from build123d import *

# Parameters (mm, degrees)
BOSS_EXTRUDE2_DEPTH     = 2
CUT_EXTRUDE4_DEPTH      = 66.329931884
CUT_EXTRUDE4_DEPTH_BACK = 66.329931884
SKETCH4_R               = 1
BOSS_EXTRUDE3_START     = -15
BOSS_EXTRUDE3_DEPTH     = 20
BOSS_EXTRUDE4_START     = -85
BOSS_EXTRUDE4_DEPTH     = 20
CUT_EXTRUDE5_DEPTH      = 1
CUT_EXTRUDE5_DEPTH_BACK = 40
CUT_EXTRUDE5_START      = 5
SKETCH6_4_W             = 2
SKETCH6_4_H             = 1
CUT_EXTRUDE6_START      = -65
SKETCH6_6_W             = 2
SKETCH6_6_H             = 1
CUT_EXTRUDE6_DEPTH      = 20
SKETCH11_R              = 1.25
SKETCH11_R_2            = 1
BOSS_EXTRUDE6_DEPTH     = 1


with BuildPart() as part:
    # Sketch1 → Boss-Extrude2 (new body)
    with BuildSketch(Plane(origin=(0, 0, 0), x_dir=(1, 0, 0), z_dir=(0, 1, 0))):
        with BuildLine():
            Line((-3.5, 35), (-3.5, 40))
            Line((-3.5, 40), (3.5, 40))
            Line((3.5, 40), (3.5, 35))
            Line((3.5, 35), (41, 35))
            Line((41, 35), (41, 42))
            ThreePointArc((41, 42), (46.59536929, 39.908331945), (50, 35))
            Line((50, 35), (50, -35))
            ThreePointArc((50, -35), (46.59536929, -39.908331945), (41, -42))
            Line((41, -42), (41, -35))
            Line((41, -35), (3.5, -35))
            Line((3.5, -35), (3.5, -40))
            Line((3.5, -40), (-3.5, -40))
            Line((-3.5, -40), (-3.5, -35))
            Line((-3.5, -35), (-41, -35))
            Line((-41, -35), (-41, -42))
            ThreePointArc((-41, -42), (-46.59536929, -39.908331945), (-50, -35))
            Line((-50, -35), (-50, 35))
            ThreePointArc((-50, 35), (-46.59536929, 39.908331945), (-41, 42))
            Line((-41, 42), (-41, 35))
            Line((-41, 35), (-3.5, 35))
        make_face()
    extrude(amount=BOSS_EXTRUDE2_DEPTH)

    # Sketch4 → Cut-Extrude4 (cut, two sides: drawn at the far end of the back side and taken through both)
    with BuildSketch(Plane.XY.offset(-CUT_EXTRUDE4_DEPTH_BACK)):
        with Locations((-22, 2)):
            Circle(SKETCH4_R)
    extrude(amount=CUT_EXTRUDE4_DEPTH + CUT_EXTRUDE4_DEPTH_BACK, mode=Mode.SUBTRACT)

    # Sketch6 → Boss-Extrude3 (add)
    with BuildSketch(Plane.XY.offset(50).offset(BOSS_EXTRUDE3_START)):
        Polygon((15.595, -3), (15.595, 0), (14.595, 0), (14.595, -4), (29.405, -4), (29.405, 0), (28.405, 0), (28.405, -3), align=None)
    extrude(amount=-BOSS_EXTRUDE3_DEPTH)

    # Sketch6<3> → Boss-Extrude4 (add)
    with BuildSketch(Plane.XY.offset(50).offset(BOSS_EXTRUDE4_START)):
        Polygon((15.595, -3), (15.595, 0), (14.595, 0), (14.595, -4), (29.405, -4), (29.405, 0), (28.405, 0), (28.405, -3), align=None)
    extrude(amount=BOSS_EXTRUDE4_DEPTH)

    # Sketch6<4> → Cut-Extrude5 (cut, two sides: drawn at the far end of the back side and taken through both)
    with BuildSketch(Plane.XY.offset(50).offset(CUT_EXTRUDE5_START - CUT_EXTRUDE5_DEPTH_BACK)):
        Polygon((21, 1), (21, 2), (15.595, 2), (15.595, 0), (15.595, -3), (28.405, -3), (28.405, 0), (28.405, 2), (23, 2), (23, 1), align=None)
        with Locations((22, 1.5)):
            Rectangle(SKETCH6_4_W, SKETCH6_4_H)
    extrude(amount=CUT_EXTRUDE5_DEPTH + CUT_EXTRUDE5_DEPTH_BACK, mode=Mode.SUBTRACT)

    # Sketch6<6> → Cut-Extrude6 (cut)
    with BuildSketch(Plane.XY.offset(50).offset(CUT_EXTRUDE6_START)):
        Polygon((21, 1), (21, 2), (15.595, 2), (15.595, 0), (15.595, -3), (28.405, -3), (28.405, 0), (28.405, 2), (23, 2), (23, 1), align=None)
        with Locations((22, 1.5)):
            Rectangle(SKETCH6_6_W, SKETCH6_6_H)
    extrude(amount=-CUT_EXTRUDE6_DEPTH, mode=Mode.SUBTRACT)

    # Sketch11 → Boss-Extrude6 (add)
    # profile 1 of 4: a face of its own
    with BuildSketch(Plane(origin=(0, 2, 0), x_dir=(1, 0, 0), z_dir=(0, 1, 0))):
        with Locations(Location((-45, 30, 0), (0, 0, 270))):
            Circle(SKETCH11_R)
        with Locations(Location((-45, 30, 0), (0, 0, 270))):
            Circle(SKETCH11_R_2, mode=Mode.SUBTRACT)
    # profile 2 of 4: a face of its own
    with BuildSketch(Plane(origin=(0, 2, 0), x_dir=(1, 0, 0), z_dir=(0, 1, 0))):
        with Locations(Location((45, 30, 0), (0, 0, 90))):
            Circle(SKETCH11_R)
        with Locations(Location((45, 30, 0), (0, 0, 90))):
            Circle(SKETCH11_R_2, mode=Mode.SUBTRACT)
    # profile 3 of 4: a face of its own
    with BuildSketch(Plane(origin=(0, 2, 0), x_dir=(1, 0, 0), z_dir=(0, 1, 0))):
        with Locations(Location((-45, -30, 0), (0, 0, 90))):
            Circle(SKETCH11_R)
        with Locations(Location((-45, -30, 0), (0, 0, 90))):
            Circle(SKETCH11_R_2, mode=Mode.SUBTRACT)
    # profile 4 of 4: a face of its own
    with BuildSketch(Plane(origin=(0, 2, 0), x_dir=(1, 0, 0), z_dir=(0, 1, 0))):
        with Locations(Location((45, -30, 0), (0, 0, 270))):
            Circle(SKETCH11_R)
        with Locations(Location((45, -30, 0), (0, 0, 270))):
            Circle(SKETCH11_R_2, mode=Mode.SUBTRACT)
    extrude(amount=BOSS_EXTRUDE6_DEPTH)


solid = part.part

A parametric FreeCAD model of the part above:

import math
import FreeCAD as App
import Part
import Sketcher

V = App.Vector
Q = App.Units.Quantity

doc = App.newDocument("Part")
body = doc.addObject("PartDesign::Body", "Body")

sketch1 = body.newObject("Sketcher::SketchObject", "Sketch")
sketch1.AttachmentSupport = (doc.getObject("XZ_Plane"), [""])
sketch1.MapMode = "FlatFace"
sketch1.addGeometry([
    Part.LineSegment(V(-3.5, -40, 0), V(-3.5, -35, 0)),
    Part.LineSegment(V(-3.5, -35, 0), V(-41, -35, 0)),
    Part.LineSegment(V(-41, -35, 0), V(-41, -42, 0)),
    Part.ArcOfCircle(Part.Circle(V(-40.455963, -32.01481, 0), V(0, 0, 1), 10), math.radians(-162.631326), math.radians(-93.118641)),
    Part.LineSegment(V(-50, -35, 0), V(-50, 35, 0)),
    Part.ArcOfCircle(Part.Circle(V(-40.455963, 32.01481, 0), V(0, 0, 1), 10), math.radians(93.118641), math.radians(162.631326)),
    Part.LineSegment(V(-41, 42, 0), V(-41, 35, 0)),
    Part.LineSegment(V(-41, 35, 0), V(-3.5, 35, 0)),
    Part.LineSegment(V(-3.5, 35, 0), V(-3.5, 40, 0)),
    Part.LineSegment(V(-3.5, 40, 0), V(3.5, 40, 0)),
    Part.LineSegment(V(3.5, 40, 0), V(3.5, 35, 0)),
    Part.LineSegment(V(3.5, 35, 0), V(41, 35, 0)),
    Part.LineSegment(V(41, 35, 0), V(41, 42, 0)),
    Part.ArcOfCircle(Part.Circle(V(40.455963, 32.01481, 0), V(0, 0, 1), 10), math.radians(17.368674), math.radians(86.881359)),
    Part.LineSegment(V(50, 35, 0), V(50, -35, 0)),
    Part.ArcOfCircle(Part.Circle(V(40.455963, -32.01481, 0), V(0, 0, 1), 10), math.radians(-86.881359), math.radians(-17.368674)),
    Part.LineSegment(V(41, -42, 0), V(41, -35, 0)),
    Part.LineSegment(V(41, -35, 0), V(3.5, -35, 0)),
    Part.LineSegment(V(3.5, -35, 0), V(3.5, -40, 0)),
    Part.LineSegment(V(3.5, -40, 0), V(-3.5, -40, 0)),
], False)
sketch1.addConstraint([
    Sketcher.Constraint("Coincident", 0, 2, 1, 1),
    Sketcher.Constraint("Coincident", 1, 2, 2, 1),
    Sketcher.Constraint("Coincident", 2, 2, 3, 2),
    Sketcher.Constraint("Coincident", 3, 1, 4, 1),
    Sketcher.Constraint("Coincident", 4, 2, 5, 2),
    Sketcher.Constraint("Coincident", 5, 1, 6, 1),
    Sketcher.Constraint("Coincident", 6, 2, 7, 1),
    Sketcher.Constraint("Coincident", 7, 2, 8, 1),
    Sketcher.Constraint("Coincident", 8, 2, 9, 1),
    Sketcher.Constraint("Coincident", 9, 2, 10, 1),
    Sketcher.Constraint("Coincident", 10, 2, 11, 1),
    Sketcher.Constraint("Coincident", 11, 2, 12, 1),
    Sketcher.Constraint("Coincident", 12, 2, 13, 2),
    Sketcher.Constraint("Coincident", 13, 1, 14, 1),
    Sketcher.Constraint("Coincident", 14, 2, 15, 2),
    Sketcher.Constraint("Coincident", 15, 1, 16, 1),
    Sketcher.Constraint("Coincident", 16, 2, 17, 1),
    Sketcher.Constraint("Coincident", 17, 2, 18, 1),
    Sketcher.Constraint("Coincident", 18, 2, 19, 1),
    Sketcher.Constraint("Coincident", 19, 2, 0, 1),
    Sketcher.Constraint("Vertical", 0),
    Sketcher.Constraint("Horizontal", 1),
    Sketcher.Constraint("Vertical", 2),
    Sketcher.Constraint("Vertical", 4),
    Sketcher.Constraint("Vertical", 6),
    Sketcher.Constraint("Horizontal", 7),
    Sketcher.Constraint("Vertical", 8),
    Sketcher.Constraint("Horizontal", 9),
    Sketcher.Constraint("Vertical", 10),
    Sketcher.Constraint("Horizontal", 11),
    Sketcher.Constraint("Vertical", 12),
    Sketcher.Constraint("Vertical", 14),
    Sketcher.Constraint("Vertical", 16),
    Sketcher.Constraint("Horizontal", 17),
    Sketcher.Constraint("Vertical", 18),
    Sketcher.Constraint("Horizontal", 19),
    Sketcher.Constraint("Equal", 3, 5),
    Sketcher.Constraint("Equal", 5, 13),
    Sketcher.Constraint("Equal", 13, 15),
    Sketcher.Constraint("Symmetric", 3, 3, 13, 3, -1, 1),
    Sketcher.Constraint("Symmetric", 5, 3, 15, 3, -1, 1),
    Sketcher.Constraint("Symmetric", 0, 2, 10, 2, -1, 1),
    Sketcher.Constraint("Symmetric", 6, 2, 16, 2, -1, 1),
    Sketcher.Constraint("Symmetric", 8, 2, 18, 2, -1, 1),
    Sketcher.Constraint("Symmetric", 5, 3, 13, 3, -2),
    Sketcher.Constraint("Symmetric", 7, 2, 10, 2, -2),
    Sketcher.Constraint("Horizontal", 1, 2, 3, 1),
    Sketcher.Constraint("Horizontal", 5, 1, 12, 2),
    Sketcher.Constraint("Horizontal", 11, 2, 13, 1),
    Sketcher.Constraint("Horizontal", 2, 2, 15, 1),
    Sketcher.Constraint("Equal", 19, 2),
    Sketcher.Constraint("Radius", 3, Q("10 mm")),
    Sketcher.Constraint("DistanceX", 9, 1, 9, 2, Q("7 mm")),
    Sketcher.Constraint("DistanceY", 0, 1, 0, 2, Q("5 mm")),
    Sketcher.Constraint("DistanceY", 4, 1, 4, 2, Q("70 mm")),
    Sketcher.Constraint("DistanceX", 1, 2, 1, 1, Q("37.5 mm")),
    Sketcher.Constraint("DistanceX", 3, 1, -1, 1, Q("50 mm")),
])
pad1 = body.newObject("PartDesign::Pad", "Pad")
pad1.Profile = sketch1
pad1.Length = 2
pad1.Reversed = True

sketch2 = body.newObject("Sketcher::SketchObject", "Sketch001")
sketch2.AttachmentSupport = (doc.getObject("XY_Plane"), [""])
sketch2.MapMode = "FlatFace"
sketch2.addGeometry(Part.Circle(V(-22, 2, 0), V(0, 0, 1), 1), False)
sketch2.addConstraint([
    Sketcher.Constraint("Diameter", 0, Q("2 mm")),
    Sketcher.Constraint("DistanceX", 0, 3, -1, 1, Q("22 mm")),
    Sketcher.Constraint("DistanceY", -1, 1, 0, 3, Q("2 mm")),
])
pocket1 = body.newObject("PartDesign::Pocket", "Pocket")
pocket1.Profile = sketch2
pocket1.Type = "ThroughAll"
pocket1.Midplane = True

sketch3 = body.newObject("Sketcher::SketchObject", "Sketch002")
sketch3.AttachmentSupport = (doc.getObject("XY_Plane"), [""])
sketch3.MapMode = "FlatFace"
sketch3.AttachmentOffset = App.Placement(V(0, 0, 35), App.Rotation())
sketch3.addGeometry([
    Part.LineSegment(V(15.595, -3, 0), V(15.595, 0, 0)),
    Part.LineSegment(V(15.595, 0, 0), V(14.595, 0, 0)),
    Part.LineSegment(V(14.595, 0, 0), V(14.595, -4, 0)),
    Part.LineSegment(V(14.595, -4, 0), V(29.405, -4, 0)),
    Part.LineSegment(V(29.405, -4, 0), V(29.405, 0, 0)),
    Part.LineSegment(V(29.405, 0, 0), V(28.405, 0, 0)),
    Part.LineSegment(V(28.405, 0, 0), V(28.405, -3, 0)),
    Part.LineSegment(V(28.405, -3, 0), V(15.595, -3, 0)),
], False)
sketch3.addConstraint([
    Sketcher.Constraint("Coincident", 0, 2, 1, 1),
    Sketcher.Constraint("Coincident", 1, 2, 2, 1),
    Sketcher.Constraint("Coincident", 2, 2, 3, 1),
    Sketcher.Constraint("Coincident", 3, 2, 4, 1),
    Sketcher.Constraint("Coincident", 4, 2, 5, 1),
    Sketcher.Constraint("Coincident", 5, 2, 6, 1),
    Sketcher.Constraint("Coincident", 6, 2, 7, 1),
    Sketcher.Constraint("Coincident", 7, 2, 0, 1),
    Sketcher.Constraint("Vertical", 0),
    Sketcher.Constraint("Horizontal", 1),
    Sketcher.Constraint("Vertical", 2),
    Sketcher.Constraint("Horizontal", 3),
    Sketcher.Constraint("Vertical", 4),
    Sketcher.Constraint("Horizontal", 5),
    Sketcher.Constraint("Vertical", 6),
    Sketcher.Constraint("Horizontal", 7),
    Sketcher.Constraint("PointOnObject", 0, 2, -1),
    Sketcher.Constraint("PointOnObject", 4, 2, -1),
    Sketcher.Constraint("Equal", 1, 5),
    Sketcher.Constraint("DistanceX", 1, 2, 1, 1, Q("1 mm")),
    Sketcher.Constraint("DistanceY", 0, 1, 0, 2, Q("3 mm")),
    Sketcher.Constraint("DistanceY", 2, 2, 2, 1, Q("4 mm")),
    Sketcher.Constraint("DistanceX", 3, 1, 3, 2, Q("14.81 mm")),
    Sketcher.Constraint("DistanceX", -1, 1, 0, 2, Q("15.595 mm")),
])
pad2 = body.newObject("PartDesign::Pad", "Pad001")
pad2.Profile = sketch3
pad2.Length = 20
pad2.Reversed = True

sketch4 = body.newObject("Sketcher::SketchObject", "Sketch003")
sketch4.AttachmentSupport = (doc.getObject("XY_Plane"), [""])
sketch4.MapMode = "FlatFace"
sketch4.AttachmentOffset = App.Placement(V(0, 0, -35), App.Rotation())
sketch4.addGeometry([
    Part.LineSegment(V(15.595, -3, 0), V(15.595, 0, 0)),
    Part.LineSegment(V(15.595, 0, 0), V(14.595, 0, 0)),
    Part.LineSegment(V(14.595, 0, 0), V(14.595, -4, 0)),
    Part.LineSegment(V(14.595, -4, 0), V(29.405, -4, 0)),
    Part.LineSegment(V(29.405, -4, 0), V(29.405, 0, 0)),
    Part.LineSegment(V(29.405, 0, 0), V(28.405, 0, 0)),
    Part.LineSegment(V(28.405, 0, 0), V(28.405, -3, 0)),
    Part.LineSegment(V(28.405, -3, 0), V(15.595, -3, 0)),
], False)
sketch4.addConstraint([
    Sketcher.Constraint("Coincident", 0, 2, 1, 1),
    Sketcher.Constraint("Coincident", 1, 2, 2, 1),
    Sketcher.Constraint("Coincident", 2, 2, 3, 1),
    Sketcher.Constraint("Coincident", 3, 2, 4, 1),
    Sketcher.Constraint("Coincident", 4, 2, 5, 1),
    Sketcher.Constraint("Coincident", 5, 2, 6, 1),
    Sketcher.Constraint("Coincident", 6, 2, 7, 1),
    Sketcher.Constraint("Coincident", 7, 2, 0, 1),
    Sketcher.Constraint("Vertical", 0),
    Sketcher.Constraint("Horizontal", 1),
    Sketcher.Constraint("Vertical", 2),
    Sketcher.Constraint("Horizontal", 3),
    Sketcher.Constraint("Vertical", 4),
    Sketcher.Constraint("Horizontal", 5),
    Sketcher.Constraint("Vertical", 6),
    Sketcher.Constraint("Horizontal", 7),
    Sketcher.Constraint("PointOnObject", 0, 2, -1),
    Sketcher.Constraint("PointOnObject", 4, 2, -1),
    Sketcher.Constraint("Equal", 1, 5),
    Sketcher.Constraint("DistanceX", 1, 2, 1, 1, Q("1 mm")),
    Sketcher.Constraint("DistanceY", 0, 1, 0, 2, Q("3 mm")),
    Sketcher.Constraint("DistanceY", 2, 2, 2, 1, Q("4 mm")),
    Sketcher.Constraint("DistanceX", 3, 1, 3, 2, Q("14.81 mm")),
    Sketcher.Constraint("DistanceX", -1, 1, 0, 2, Q("15.595 mm")),
])
pad3 = body.newObject("PartDesign::Pad", "Pad002")
pad3.Profile = sketch4
pad3.Length = 20

sketch5 = body.newObject("Sketcher::SketchObject", "Sketch004")
sketch5.AttachmentSupport = (doc.getObject("XY_Plane"), [""])
sketch5.MapMode = "FlatFace"
sketch5.AttachmentOffset = App.Placement(V(0, 0, 55), App.Rotation())
sketch5.addGeometry([
    Part.LineSegment(V(15.595, 2, 0), V(15.595, -3, 0)),
    Part.LineSegment(V(15.595, -3, 0), V(28.405, -3, 0)),
    Part.LineSegment(V(28.405, -3, 0), V(28.405, 2, 0)),
    Part.LineSegment(V(28.405, 2, 0), V(15.595, 2, 0)),
], False)
sketch5.addConstraint([
    Sketcher.Constraint("Coincident", 0, 2, 1, 1),
    Sketcher.Constraint("Coincident", 1, 2, 2, 1),
    Sketcher.Constraint("Coincident", 2, 2, 3, 1),
    Sketcher.Constraint("Coincident", 3, 2, 0, 1),
    Sketcher.Constraint("Vertical", 0),
    Sketcher.Constraint("Horizontal", 1),
    Sketcher.Constraint("Vertical", 2),
    Sketcher.Constraint("Horizontal", 3),
    Sketcher.Constraint("DistanceY", 0, 2, 0, 1, Q("5 mm")),
    Sketcher.Constraint("DistanceY", 0, 2, -1, 1, Q("3 mm")),
    Sketcher.Constraint("DistanceX", 1, 1, 1, 2, Q("12.81 mm")),
    Sketcher.Constraint("DistanceX", -1, 1, 0, 2, Q("15.595 mm")),
])
pocket2 = body.newObject("PartDesign::Pocket", "Pocket001")
pocket2.Profile = sketch5
pocket2.Type = "TwoLengths"
pocket2.Length = 1
pocket2.Length2 = 40
pocket2.Reversed = True

sketch6 = body.newObject("Sketcher::SketchObject", "Sketch005")
sketch6.AttachmentSupport = (doc.getObject("XY_Plane"), [""])
sketch6.MapMode = "FlatFace"
sketch6.AttachmentOffset = App.Placement(V(0, 0, -15), App.Rotation())
sketch6.addGeometry([
    Part.LineSegment(V(15.595, 2, 0), V(15.595, -3, 0)),
    Part.LineSegment(V(15.595, -3, 0), V(28.405, -3, 0)),
    Part.LineSegment(V(28.405, -3, 0), V(28.405, 2, 0)),
    Part.LineSegment(V(28.405, 2, 0), V(15.595, 2, 0)),
], False)
sketch6.addConstraint([
    Sketcher.Constraint("Coincident", 0, 2, 1, 1),
    Sketcher.Constraint("Coincident", 1, 2, 2, 1),
    Sketcher.Constraint("Coincident", 2, 2, 3, 1),
    Sketcher.Constraint("Coincident", 3, 2, 0, 1),
    Sketcher.Constraint("Vertical", 0),
    Sketcher.Constraint("Horizontal", 1),
    Sketcher.Constraint("Vertical", 2),
    Sketcher.Constraint("Horizontal", 3),
    Sketcher.Constraint("DistanceY", 0, 2, 0, 1, Q("5 mm")),
    Sketcher.Constraint("DistanceY", 0, 2, -1, 1, Q("3 mm")),
    Sketcher.Constraint("DistanceX", 1, 1, 1, 2, Q("12.81 mm")),
    Sketcher.Constraint("DistanceX", -1, 1, 0, 2, Q("15.595 mm")),
])
pocket3 = body.newObject("PartDesign::Pocket", "Pocket002")
pocket3.Profile = sketch6
pocket3.Length = 20

sketch7 = body.newObject("Sketcher::SketchObject", "Sketch006")
sketch7.AttachmentSupport = (doc.getObject("XZ_Plane"), [""])
sketch7.MapMode = "FlatFace"
sketch7.AttachmentOffset = App.Placement(V(0, 0, -2), App.Rotation())
sketch7.addGeometry([
    Part.Circle(V(-45, -30, 0), V(0, 0, 1), 1.25),
    Part.Circle(V(-45, -30, 0), V(0, 0, 1), 1),
    Part.Circle(V(45, -30, 0), V(0, 0, 1), 1.25),
    Part.Circle(V(45, -30, 0), V(0, 0, 1), 1),
    Part.Circle(V(-45, 30, 0), V(0, 0, 1), 1.25),
    Part.Circle(V(-45, 30, 0), V(0, 0, 1), 1),
    Part.Circle(V(45, 30, 0), V(0, 0, 1), 1.25),
    Part.Circle(V(45, 30, 0), V(0, 0, 1), 1),
], False)
sketch7.addConstraint([
    Sketcher.Constraint("Coincident", 1, 3, 0, 3),
    Sketcher.Constraint("Coincident", 3, 3, 2, 3),
    Sketcher.Constraint("Coincident", 5, 3, 4, 3),
    Sketcher.Constraint("Coincident", 7, 3, 6, 3),
    Sketcher.Constraint("Equal", 0, 2),
    Sketcher.Constraint("Equal", 1, 3),
    Sketcher.Constraint("Equal", 2, 4),
    Sketcher.Constraint("Equal", 3, 5),
    Sketcher.Constraint("Equal", 4, 6),
    Sketcher.Constraint("Equal", 5, 7),
    Sketcher.Constraint("Symmetric", 2, 3, 4, 3, -1, 1),
    Sketcher.Constraint("Symmetric", 0, 3, 6, 3, -1, 1),
    Sketcher.Constraint("Symmetric", 0, 3, 2, 3, -2),
    Sketcher.Constraint("Diameter", 1, Q("2 mm")),
    Sketcher.Constraint("Diameter", 0, Q("2.5 mm")),
    Sketcher.Constraint("DistanceX", 0, 3, -1, 1, Q("45 mm")),
    Sketcher.Constraint("DistanceY", 0, 3, -1, 1, Q("30 mm")),
])
pad4 = body.newObject("PartDesign::Pad", "Pad003")
pad4.Profile = sketch7
pad4.Length = 1
pad4.Reversed = True

doc.recompute()
